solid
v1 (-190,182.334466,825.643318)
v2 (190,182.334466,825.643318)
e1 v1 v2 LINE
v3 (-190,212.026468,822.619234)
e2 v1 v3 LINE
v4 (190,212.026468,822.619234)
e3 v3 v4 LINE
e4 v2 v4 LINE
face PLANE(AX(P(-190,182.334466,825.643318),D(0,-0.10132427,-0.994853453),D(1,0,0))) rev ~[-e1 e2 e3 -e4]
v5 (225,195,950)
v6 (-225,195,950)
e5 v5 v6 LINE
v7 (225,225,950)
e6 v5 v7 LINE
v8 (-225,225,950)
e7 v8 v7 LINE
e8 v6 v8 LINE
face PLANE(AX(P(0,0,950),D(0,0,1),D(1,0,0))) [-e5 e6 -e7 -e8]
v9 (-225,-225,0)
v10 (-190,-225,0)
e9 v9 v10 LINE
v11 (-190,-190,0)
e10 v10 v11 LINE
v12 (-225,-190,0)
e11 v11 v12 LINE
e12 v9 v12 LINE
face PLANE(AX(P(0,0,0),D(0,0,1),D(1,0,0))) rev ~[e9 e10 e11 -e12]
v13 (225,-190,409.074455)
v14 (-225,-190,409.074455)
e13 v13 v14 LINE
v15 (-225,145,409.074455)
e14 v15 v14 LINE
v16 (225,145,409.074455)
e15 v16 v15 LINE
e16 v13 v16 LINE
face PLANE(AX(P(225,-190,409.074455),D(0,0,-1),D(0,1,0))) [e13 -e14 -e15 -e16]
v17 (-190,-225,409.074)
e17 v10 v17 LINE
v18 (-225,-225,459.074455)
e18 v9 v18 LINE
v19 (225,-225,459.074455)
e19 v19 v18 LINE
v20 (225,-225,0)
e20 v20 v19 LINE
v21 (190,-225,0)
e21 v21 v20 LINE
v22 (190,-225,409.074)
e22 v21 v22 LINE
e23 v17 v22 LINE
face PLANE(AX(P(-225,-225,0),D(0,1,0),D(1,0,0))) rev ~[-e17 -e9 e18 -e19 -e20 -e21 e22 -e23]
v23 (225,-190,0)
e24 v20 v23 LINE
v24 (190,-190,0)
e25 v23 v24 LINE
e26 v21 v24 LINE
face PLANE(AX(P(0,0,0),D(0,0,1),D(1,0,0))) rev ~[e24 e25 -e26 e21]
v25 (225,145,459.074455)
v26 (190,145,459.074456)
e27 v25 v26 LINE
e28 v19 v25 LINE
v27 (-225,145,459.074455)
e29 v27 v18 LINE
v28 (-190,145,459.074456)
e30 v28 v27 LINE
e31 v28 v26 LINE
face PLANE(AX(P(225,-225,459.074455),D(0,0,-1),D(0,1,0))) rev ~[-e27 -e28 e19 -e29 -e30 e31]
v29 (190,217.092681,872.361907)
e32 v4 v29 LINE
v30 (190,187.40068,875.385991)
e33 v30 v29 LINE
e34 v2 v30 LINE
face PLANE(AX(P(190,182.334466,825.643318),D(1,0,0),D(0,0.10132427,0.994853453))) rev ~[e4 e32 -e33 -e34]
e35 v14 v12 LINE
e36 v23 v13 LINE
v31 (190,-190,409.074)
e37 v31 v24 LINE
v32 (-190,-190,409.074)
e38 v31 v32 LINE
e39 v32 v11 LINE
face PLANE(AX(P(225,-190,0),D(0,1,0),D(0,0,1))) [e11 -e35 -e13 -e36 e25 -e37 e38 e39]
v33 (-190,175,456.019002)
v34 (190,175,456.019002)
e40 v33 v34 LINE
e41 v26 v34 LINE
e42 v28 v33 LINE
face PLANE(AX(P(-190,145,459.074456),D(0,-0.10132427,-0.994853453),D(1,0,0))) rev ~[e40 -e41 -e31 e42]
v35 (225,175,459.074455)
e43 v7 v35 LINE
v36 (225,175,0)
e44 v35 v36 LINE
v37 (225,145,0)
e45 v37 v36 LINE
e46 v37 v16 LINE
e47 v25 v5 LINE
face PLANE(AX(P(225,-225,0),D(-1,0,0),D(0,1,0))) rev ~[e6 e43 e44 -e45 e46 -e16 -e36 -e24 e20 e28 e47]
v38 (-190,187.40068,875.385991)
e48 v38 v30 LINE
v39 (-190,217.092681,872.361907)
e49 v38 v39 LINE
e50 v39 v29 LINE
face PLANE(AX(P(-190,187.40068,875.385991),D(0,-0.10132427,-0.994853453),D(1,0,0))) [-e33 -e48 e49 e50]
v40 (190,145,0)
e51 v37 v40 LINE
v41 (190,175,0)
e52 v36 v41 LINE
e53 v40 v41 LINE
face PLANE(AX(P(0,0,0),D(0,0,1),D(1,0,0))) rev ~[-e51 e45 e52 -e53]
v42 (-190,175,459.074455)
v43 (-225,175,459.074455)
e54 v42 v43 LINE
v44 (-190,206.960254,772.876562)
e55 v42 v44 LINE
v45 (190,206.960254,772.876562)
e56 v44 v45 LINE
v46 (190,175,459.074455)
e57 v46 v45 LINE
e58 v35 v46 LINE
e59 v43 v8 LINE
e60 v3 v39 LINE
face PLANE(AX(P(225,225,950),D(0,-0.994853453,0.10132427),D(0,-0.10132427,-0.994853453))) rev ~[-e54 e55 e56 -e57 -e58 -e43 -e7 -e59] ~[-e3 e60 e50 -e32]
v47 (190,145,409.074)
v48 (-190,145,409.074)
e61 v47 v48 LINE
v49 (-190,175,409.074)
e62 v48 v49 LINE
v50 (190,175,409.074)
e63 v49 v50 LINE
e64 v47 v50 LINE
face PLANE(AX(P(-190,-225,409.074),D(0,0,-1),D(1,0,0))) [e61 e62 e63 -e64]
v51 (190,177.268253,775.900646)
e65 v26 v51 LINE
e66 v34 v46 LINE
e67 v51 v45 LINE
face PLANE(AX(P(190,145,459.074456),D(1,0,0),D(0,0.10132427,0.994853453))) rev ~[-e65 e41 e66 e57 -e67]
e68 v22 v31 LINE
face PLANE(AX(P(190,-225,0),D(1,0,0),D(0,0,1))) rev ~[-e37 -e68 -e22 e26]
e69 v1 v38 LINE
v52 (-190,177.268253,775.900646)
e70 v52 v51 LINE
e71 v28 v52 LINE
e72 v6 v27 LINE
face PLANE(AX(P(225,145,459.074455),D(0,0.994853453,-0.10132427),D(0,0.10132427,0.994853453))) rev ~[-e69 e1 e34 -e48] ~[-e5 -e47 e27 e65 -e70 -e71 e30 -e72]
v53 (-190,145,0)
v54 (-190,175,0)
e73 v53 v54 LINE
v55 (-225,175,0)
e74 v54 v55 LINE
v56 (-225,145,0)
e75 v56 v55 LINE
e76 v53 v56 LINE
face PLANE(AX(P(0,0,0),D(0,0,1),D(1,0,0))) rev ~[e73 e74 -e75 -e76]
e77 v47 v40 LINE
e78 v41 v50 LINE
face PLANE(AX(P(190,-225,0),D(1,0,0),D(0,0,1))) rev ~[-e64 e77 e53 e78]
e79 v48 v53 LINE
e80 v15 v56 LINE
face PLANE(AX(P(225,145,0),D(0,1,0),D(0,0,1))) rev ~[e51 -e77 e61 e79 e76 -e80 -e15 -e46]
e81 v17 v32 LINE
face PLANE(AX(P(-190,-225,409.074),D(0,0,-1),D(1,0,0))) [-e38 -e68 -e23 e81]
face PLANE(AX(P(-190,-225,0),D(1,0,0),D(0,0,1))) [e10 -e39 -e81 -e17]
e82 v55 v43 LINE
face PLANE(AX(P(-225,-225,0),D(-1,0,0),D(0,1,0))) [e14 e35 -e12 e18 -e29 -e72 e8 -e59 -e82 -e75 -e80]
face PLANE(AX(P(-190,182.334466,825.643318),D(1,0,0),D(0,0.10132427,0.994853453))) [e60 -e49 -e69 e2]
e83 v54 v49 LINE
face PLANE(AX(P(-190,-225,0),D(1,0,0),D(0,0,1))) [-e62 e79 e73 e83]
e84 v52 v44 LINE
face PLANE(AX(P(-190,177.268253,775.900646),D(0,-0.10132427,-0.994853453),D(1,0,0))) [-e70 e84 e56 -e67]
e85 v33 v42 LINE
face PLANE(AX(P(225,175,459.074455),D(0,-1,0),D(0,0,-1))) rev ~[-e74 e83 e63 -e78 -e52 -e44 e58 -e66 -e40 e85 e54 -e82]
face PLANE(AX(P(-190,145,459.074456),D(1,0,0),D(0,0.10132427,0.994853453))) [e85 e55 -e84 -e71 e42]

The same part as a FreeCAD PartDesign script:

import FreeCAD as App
import Part
import Sketcher

V = App.Vector
Q = App.Units.Quantity


def add_polygon(sketch, points):
    """Adds a closed chain of lines whose ends are joined by coincident constraints."""
    first, n = sketch.GeometryCount, len(points)
    for a, b in zip(points, points[1:] + points[:1]):
        sketch.addGeometry(Part.LineSegment(App.Vector(*a, 0), App.Vector(*b, 0)), False)
    for i in range(n):
        sketch.addConstraint(Sketcher.Constraint("Coincident", first + i, 2, first + (i + 1) % n, 1))

doc = App.newDocument("Part")
body = doc.addObject("PartDesign::Body", "Body")

# Sketch on XY plane
sketch1 = body.newObject("Sketcher::SketchObject", "Sketch")
sketch1.AttachmentSupport = (doc.getObject("XY_Plane"), [""])
sketch1.MapMode = "FlatFace"
add_polygon(sketch1, [(-225, 225), (-225, -225), (225, -225), (225, 225)])  # lines 0-3
sketch1.addConstraint(Sketcher.Constraint("Vertical", 0))
sketch1.addConstraint(Sketcher.Constraint("Horizontal", 1))
sketch1.addConstraint(Sketcher.Constraint("Vertical", 2))
sketch1.addConstraint(Sketcher.Constraint("Horizontal", 3))
sketch1.addConstraint(Sketcher.Constraint("Symmetric", 0, 2, 2, 2, -1, 1))
sketch1.addConstraint(Sketcher.Constraint("Equal", 3, 0))
sketch1.addConstraint(Sketcher.Constraint("DistanceX", 1, 1, 1, 2, Q("450 mm")))
pad1 = body.newObject("PartDesign::Pad", "Pad")
pad1.Profile = sketch1
pad1.Length = 950

# Sketch on YZ plane
sketch2 = body.newObject("Sketcher::SketchObject", "Sketch001")
sketch2.AttachmentSupport = (doc.getObject("YZ_Plane"), [""])
sketch2.MapMode = "FlatFace"
sketch2.AttachmentOffset = App.Placement(V(0, 0, 225), App.Rotation())
add_polygon(sketch2, [(225, 950), (175, 459), (175, 0), (225, 0)])  # lines 0-3
add_polygon(sketch2, [(-225, 950), (-225, 459), (145, 459), (195, 950)])  # lines 4-7
add_polygon(sketch2, [(-190, 409), (-190, 0), (145, 0), (145, 409)])  # lines 8-11
sketch2.addConstraint(Sketcher.Constraint("Vertical", 1))
sketch2.addConstraint(Sketcher.Constraint("Horizontal", 2))
sketch2.addConstraint(Sketcher.Constraint("Vertical", 3))
sketch2.addConstraint(Sketcher.Constraint("Vertical", 4))
sketch2.addConstraint(Sketcher.Constraint("Horizontal", 5))
sketch2.addConstraint(Sketcher.Constraint("Horizontal", 7))
sketch2.addConstraint(Sketcher.Constraint("Vertical", 8))
sketch2.addConstraint(Sketcher.Constraint("Horizontal", 9))
sketch2.addConstraint(Sketcher.Constraint("Vertical", 10))
sketch2.addConstraint(Sketcher.Constraint("Horizontal", 11))
sketch2.addConstraint(Sketcher.Constraint("Symmetric", 3, 2, 7, 2, -2))
sketch2.addConstraint(Sketcher.Constraint("PointOnObject", 1, 2, -1))
sketch2.addConstraint(Sketcher.Constraint("PointOnObject", 8, 2, -1))
sketch2.addConstraint(Sketcher.Constraint("Parallel", 0, 6))
sketch2.addConstraint(Sketcher.Constraint("Horizontal", 0, 2, 4, 2))
sketch2.addConstraint(Sketcher.Constraint("Vertical", 5, 2, 9, 2))
sketch2.addConstraint(Sketcher.Constraint("DistanceX", 2, 1, 2, 2, Q("50 mm")))
sketch2.addConstraint(Sketcher.Constraint("DistanceX", 5, 1, 5, 2, Q("370 mm")))
sketch2.addConstraint(Sketcher.Constraint("DistanceX", 9, 1, 9, 2, Q("335 mm")))
sketch2.addConstraint(Sketcher.Constraint("DistanceY", 3, 1, 3, 2, Q("950 mm")))
sketch2.addConstraint(Sketcher.Constraint("DistanceX", -1, 1, 0, 2, Q("175 mm")))
sketch2.addConstraint(Sketcher.Constraint("DistanceY", 10, 2, 5, 2, Q("50 mm")))
sketch2.addConstraint(Sketcher.Constraint("DistanceY", 1, 2, 1, 1, Q("459.074455 mm")))
pocket1 = body.newObject("PartDesign::Pocket", "Pocket")
pocket1.Profile = sketch2
pocket1.Type = "ThroughAll"

# Sketch on XZ plane
sketch3 = body.newObject("Sketcher::SketchObject", "Sketch002")
sketch3.AttachmentSupport = (doc.getObject("XZ_Plane"), [""])
sketch3.MapMode = "FlatFace"
sketch3.AttachmentOffset = App.Placement(V(0, 0, 225), App.Rotation())
add_polygon(sketch3, [(-190, 409), (-190, 0), (190, 0), (190, 409)])  # lines 0-3
sketch3.addConstraint(Sketcher.Constraint("Vertical", 0))
sketch3.addConstraint(Sketcher.Constraint("Horizontal", 1))
sketch3.addConstraint(Sketcher.Constraint("Vertical", 2))
sketch3.addConstraint(Sketcher.Constraint("Horizontal", 3))
sketch3.addConstraint(Sketcher.Constraint("Symmetric", 0, 2, 1, 2, -1, 1))
sketch3.addConstraint(Sketcher.Constraint("DistanceX", 1, 1, 1, 2, Q("380 mm")))
sketch3.addConstraint(Sketcher.Constraint("DistanceY", 0, 2, 0, 1, Q("409.074 mm")))
pocket2 = body.newObject("PartDesign::Pocket", "Pocket001")
pocket2.Profile = sketch3
pocket2.Type = "ThroughAll"

# Sketch on an angled plane
sketch4 = body.newObject("Sketcher::SketchObject", "Sketch003")
sketch4.Placement = App.Placement(V(0, 97.235351, -9.903269), App.Rotation(V(1, 0, 0), V(0, 0.10132427, 0.994853453), V(0, -0.994853453, 0.10132427), "ZXY"))
add_polygon(sketch4, [(-190, 890), (-190, 840), (190, 840), (190, 890)])  # lines 0-3
add_polygon(sketch4, [(-190, 790), (-190, 471), (190, 471), (190, 790)])  # lines 4-7
sketch4.addConstraint(Sketcher.Constraint("Vertical", 0))
sketch4.addConstraint(Sketcher.Constraint("Horizontal", 1))
sketch4.addConstraint(Sketcher.Constraint("Vertical", 2))
sketch4.addConstraint(Sketcher.Constraint("Horizontal", 3))
sketch4.addConstraint(Sketcher.Constraint("Vertical", 4))
sketch4.addConstraint(Sketcher.Constraint("Horizontal", 5))
sketch4.addConstraint(Sketcher.Constraint("Vertical", 6))
sketch4.addConstraint(Sketcher.Constraint("Horizontal", 7))
sketch4.addConstraint(Sketcher.Constraint("Vertical", 3, 2, 4, 2))
sketch4.addConstraint(Sketcher.Constraint("Vertical", 2, 2, 5, 2))
sketch4.addConstraint(Sketcher.Constraint("DistanceX", 1, 1, 1, 2, Q("380 mm")))
sketch4.addConstraint(Sketcher.Constraint("DistanceY", 0, 2, 0, 1, Q("50 mm")))
sketch4.addConstraint(Sketcher.Constraint("DistanceX", 0, 2, -1, 1, Q("190 mm")))
sketch4.addConstraint(Sketcher.Constraint("DistanceY", 6, 2, 1, 2, Q("50 mm")))
sketch4.addConstraint(Sketcher.Constraint("DistanceY", 4, 2, 4, 1, Q("318.465187 mm")))
sketch4.addConstraint(Sketcher.Constraint("DistanceY", -1, 1, 0, 2, Q("839.869013 mm")))
pocket3 = body.newObject("PartDesign::Pocket", "Pocket002")
pocket3.Profile = sketch4
pocket3.Type = "ThroughAll"

doc.recompute()
